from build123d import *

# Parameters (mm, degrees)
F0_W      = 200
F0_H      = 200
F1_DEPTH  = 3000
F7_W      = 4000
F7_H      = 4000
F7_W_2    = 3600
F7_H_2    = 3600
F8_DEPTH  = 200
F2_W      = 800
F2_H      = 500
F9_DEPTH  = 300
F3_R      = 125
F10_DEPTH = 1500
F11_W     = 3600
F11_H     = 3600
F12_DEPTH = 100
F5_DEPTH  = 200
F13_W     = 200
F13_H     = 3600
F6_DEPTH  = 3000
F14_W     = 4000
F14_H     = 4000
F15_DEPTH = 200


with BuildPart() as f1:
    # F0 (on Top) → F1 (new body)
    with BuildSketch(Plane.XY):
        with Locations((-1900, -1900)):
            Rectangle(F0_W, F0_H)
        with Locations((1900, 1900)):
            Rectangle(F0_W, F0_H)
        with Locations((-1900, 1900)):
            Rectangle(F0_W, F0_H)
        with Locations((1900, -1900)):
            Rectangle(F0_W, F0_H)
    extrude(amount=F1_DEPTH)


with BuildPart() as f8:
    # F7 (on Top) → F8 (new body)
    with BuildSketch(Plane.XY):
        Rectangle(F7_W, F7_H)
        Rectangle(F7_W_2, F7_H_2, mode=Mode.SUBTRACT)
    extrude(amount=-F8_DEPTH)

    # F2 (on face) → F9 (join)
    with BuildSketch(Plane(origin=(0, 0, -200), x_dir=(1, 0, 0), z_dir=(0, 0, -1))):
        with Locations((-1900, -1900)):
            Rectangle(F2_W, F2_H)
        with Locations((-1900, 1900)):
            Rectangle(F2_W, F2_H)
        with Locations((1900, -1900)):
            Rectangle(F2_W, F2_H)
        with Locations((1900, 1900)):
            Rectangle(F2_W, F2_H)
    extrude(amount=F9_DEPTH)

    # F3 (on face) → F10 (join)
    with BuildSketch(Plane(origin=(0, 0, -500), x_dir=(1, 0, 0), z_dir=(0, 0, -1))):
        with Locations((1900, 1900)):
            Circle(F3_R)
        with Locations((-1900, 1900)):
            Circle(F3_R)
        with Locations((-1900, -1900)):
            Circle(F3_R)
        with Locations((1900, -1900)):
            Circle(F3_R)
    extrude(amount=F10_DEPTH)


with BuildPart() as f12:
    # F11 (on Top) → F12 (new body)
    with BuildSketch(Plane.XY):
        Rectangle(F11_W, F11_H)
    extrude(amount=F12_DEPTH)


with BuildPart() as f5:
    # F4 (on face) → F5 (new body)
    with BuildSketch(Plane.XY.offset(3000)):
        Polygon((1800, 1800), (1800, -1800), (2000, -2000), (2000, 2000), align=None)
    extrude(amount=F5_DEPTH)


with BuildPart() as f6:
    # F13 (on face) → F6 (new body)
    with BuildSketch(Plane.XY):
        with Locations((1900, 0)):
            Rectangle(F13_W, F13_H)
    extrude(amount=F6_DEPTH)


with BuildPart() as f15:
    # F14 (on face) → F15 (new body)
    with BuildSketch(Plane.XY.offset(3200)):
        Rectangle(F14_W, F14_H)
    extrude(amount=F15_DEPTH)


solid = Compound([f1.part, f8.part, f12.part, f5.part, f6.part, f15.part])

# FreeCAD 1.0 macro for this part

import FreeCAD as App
import Part
import Sketcher


def add_polygon(sketch, points):
    """Adds a closed chain of lines whose ends are joined by coincident constraints."""
    first, n = sketch.GeometryCount, len(points)
    for a, b in zip(points, points[1:] + points[:1]):
        sketch.addGeometry(Part.LineSegment(App.Vector(*a, 0), App.Vector(*b, 0)), False)
    for i in range(n):
        sketch.addConstraint(Sketcher.Constraint("Coincident", first + i, 2, first + (i + 1) % n, 1))

doc = App.newDocument("Part")
body = doc.addObject("PartDesign::Body", "Body")
body.AllowCompound = True

# Sketch on XY plane
sketch1 = body.newObject("Sketcher::SketchObject", "Sketch")
sketch1.AttachmentSupport = (doc.getObject("XY_Plane"), [""])
sketch1.MapMode = "FlatFace"
add_polygon(sketch1, [(-2000, -1800), (-2000, -2000), (-1800, -2000), (-1800, -1800)])  # lines 0-3
add_polygon(sketch1, [(1800, 2000), (1800, 1800), (2000, 1800), (2000, 2000)])  # lines 4-7
add_polygon(sketch1, [(-2000, 2000), (-2000, 1800), (-1800, 1800), (-1800, 2000)])  # lines 8-11
add_polygon(sketch1, [(1800, -1800), (1800, -2000), (2000, -2000), (2000, -1800)])  # lines 12-15
sketch1.addConstraint(Sketcher.Constraint("Vertical", 0))
sketch1.addConstraint(Sketcher.Constraint("Horizontal", 1))
sketch1.addConstraint(Sketcher.Constraint("Vertical", 2))
sketch1.addConstraint(Sketcher.Constraint("Horizontal", 3))
sketch1.addConstraint(Sketcher.Constraint("Vertical", 4))
sketch1.addConstraint(Sketcher.Constraint("Horizontal", 5))
sketch1.addConstraint(Sketcher.Constraint("Vertical", 6))
sketch1.addConstraint(Sketcher.Constraint("Horizontal", 7))
sketch1.addConstraint(Sketcher.Constraint("Vertical", 8))
sketch1.addConstraint(Sketcher.Constraint("Horizontal", 9))
sketch1.addConstraint(Sketcher.Constraint("Vertical", 10))
sketch1.addConstraint(Sketcher.Constraint("Horizontal", 11))
sketch1.addConstraint(Sketcher.Constraint("Vertical", 12))
sketch1.addConstraint(Sketcher.Constraint("Horizontal", 13))
sketch1.addConstraint(Sketcher.Constraint("Vertical", 14))
sketch1.addConstraint(Sketcher.Constraint("Horizontal", 15))
sketch1.addConstraint(Sketcher.Constraint("Symmetric", 2, 2, 4, 2, -1, 1))
sketch1.addConstraint(Sketcher.Constraint("Symmetric", 0, 2, 6, 2, -1, 1))
sketch1.addConstraint(Sketcher.Constraint("Symmetric", 10, 2, 12, 2, -1, 1))
sketch1.addConstraint(Sketcher.Constraint("Symmetric", 8, 2, 14, 2, -1, 1))
sketch1.addConstraint(Sketcher.Constraint("Symmetric", 5, 2, 8, 2, -2))
sketch1.addConstraint(Sketcher.Constraint("Symmetric", 7, 2, 10, 2, -2))
sketch1.addConstraint(Sketcher.Constraint("Equal", 15, 0))
sketch1.addConstraint(Sketcher.Constraint("DistanceX", 1, 1, 1, 2, 200.0))
sketch1.addConstraint(Sketcher.Constraint("DistanceX", 0, 2, -1, 1, 2000.0))
sketch1.addConstraint(Sketcher.Constraint("DistanceY", 0, 2, -1, 1, 2000.0))
pad1 = body.newObject("PartDesign::Pad", "Pad")
pad1.Profile = sketch1
pad1.Length = 3000
body2 = doc.addObject("PartDesign::Body", "Body001")

# Sketch on XY plane
sketch2 = body2.newObject("Sketcher::SketchObject", "Sketch001")
sketch2.AttachmentSupport = (doc.getObject("XY_Plane001"), [""])
sketch2.MapMode = "FlatFace"
add_polygon(sketch2, [(-2000, 2000), (-2000, -2000), (2000, -2000), (2000, 2000)])  # lines 0-3
add_polygon(sketch2, [(1800, -1800), (-1800, -1800), (-1800, 1800), (1800, 1800)])  # lines 4-7
sketch2.addConstraint(Sketcher.Constraint("Vertical", 0))
sketch2.addConstraint(Sketcher.Constraint("Horizontal", 1))
sketch2.addConstraint(Sketcher.Constraint("Vertical", 2))
sketch2.addConstraint(Sketcher.Constraint("Horizontal", 3))
sketch2.addConstraint(Sketcher.Constraint("Horizontal", 4))
sketch2.addConstraint(Sketcher.Constraint("Vertical", 5))
sketch2.addConstraint(Sketcher.Constraint("Horizontal", 6))
sketch2.addConstraint(Sketcher.Constraint("Vertical", 7))
sketch2.addConstraint(Sketcher.Constraint("Symmetric", 0, 2, 2, 2, -1, 1))
sketch2.addConstraint(Sketcher.Constraint("Symmetric", 4, 2, 6, 2, -1, 1))
sketch2.addConstraint(Sketcher.Constraint("Equal", 3, 0))
sketch2.addConstraint(Sketcher.Constraint("Equal", 6, 5))
sketch2.addConstraint(Sketcher.Constraint("DistanceX", 1, 1, 1, 2, 4000.0))
sketch2.addConstraint(Sketcher.Constraint("DistanceX", 4, 2, 4, 1, 3600.0))
pad2 = body2.newObject("PartDesign::Pad", "Pad001")
pad2.Profile = sketch2
pad2.Length = 200
pad2.Reversed = True

# Sketch on XY plane
sketch3 = body2.newObject("Sketcher::SketchObject", "Sketch002")
sketch3.AttachmentSupport = (doc.getObject("XY_Plane001"), [""])
sketch3.MapMode = "FlatFace"
sketch3.AttachmentOffset = App.Placement(App.Vector(0, 0, -200), App.Rotation())
add_polygon(sketch3, [(-2300, 1650), (-2300, 2150), (-1500, 2150), (-1500, 1650)])  # lines 0-3
add_polygon(sketch3, [(-2300, -2150), (-2300, -1650), (-1500, -1650), (-1500, -2150)])  # lines 4-7
add_polygon(sketch3, [(1500, 1650), (1500, 2150), (2300, 2150), (2300, 1650)])  # lines 8-11
add_polygon(sketch3, [(1500, -2150), (1500, -1650), (2300, -1650), (2300, -2150)])  # lines 12-15
sketch3.addConstraint(Sketcher.Constraint("Vertical", 0))
sketch3.addConstraint(Sketcher.Constraint("Horizontal", 1))
sketch3.addConstraint(Sketcher.Constraint("Vertical", 2))
sketch3.addConstraint(Sketcher.Constraint("Horizontal", 3))
sketch3.addConstraint(Sketcher.Constraint("Vertical", 4))
sketch3.addConstraint(Sketcher.Constraint("Horizontal", 5))
sketch3.addConstraint(Sketcher.Constraint("Vertical", 6))
sketch3.addConstraint(Sketcher.Constraint("Horizontal", 7))
sketch3.addConstraint(Sketcher.Constraint("Vertical", 8))
sketch3.addConstraint(Sketcher.Constraint("Horizontal", 9))
sketch3.addConstraint(Sketcher.Constraint("Vertical", 10))
sketch3.addConstraint(Sketcher.Constraint("Horizontal", 11))
sketch3.addConstraint(Sketcher.Constraint("Vertical", 12))
sketch3.addConstraint(Sketcher.Constraint("Horizontal", 13))
sketch3.addConstraint(Sketcher.Constraint("Vertical", 14))
sketch3.addConstraint(Sketcher.Constraint("Horizontal", 15))
sketch3.addConstraint(Sketcher.Constraint("Symmetric", 6, 2, 8, 2, -1, 1))
sketch3.addConstraint(Sketcher.Constraint("Symmetric", 4, 2, 10, 2, -1, 1))
sketch3.addConstraint(Sketcher.Constraint("Symmetric", 2, 2, 12, 2, -1, 1))
sketch3.addConstraint(Sketcher.Constraint("Symmetric", 0, 2, 14, 2, -1, 1))
sketch3.addConstraint(Sketcher.Constraint("Symmetric", 1, 2, 8, 2, -2))
sketch3.addConstraint(Sketcher.Constraint("Symmetric", 3, 2, 10, 2, -2))
sketch3.addConstraint(Sketcher.Constraint("DistanceX", 1, 1, 1, 2, 800.0))
sketch3.addConstraint(Sketcher.Constraint("DistanceY", 0, 1, 0, 2, 500.0))
sketch3.addConstraint(Sketcher.Constraint("DistanceX", 0, 2, -1, 1, 2300.0))
sketch3.addConstraint(Sketcher.Constraint("DistanceY", -1, 1, 0, 2, 2150.0))
pad3 = body2.newObject("PartDesign::Pad", "Pad002")
pad3.Profile = sketch3
pad3.Length = 300
pad3.Reversed = True

# Sketch on XY plane
sketch4 = body2.newObject("Sketcher::SketchObject", "Sketch003")
sketch4.AttachmentSupport = (doc.getObject("XY_Plane001"), [""])
sketch4.MapMode = "FlatFace"
sketch4.AttachmentOffset = App.Placement(App.Vector(0, 0, -500), App.Rotation())
sketch4.addGeometry(Part.Circle(App.Vector(1900, -1900, 0), App.Vector(0, 0, 1), 125), False)
sketch4.addGeometry(Part.Circle(App.Vector(-1900, -1900, 0), App.Vector(0, 0, 1), 125), False)
sketch4.addGeometry(Part.Circle(App.Vector(-1900, 1900, 0), App.Vector(0, 0, 1), 125), False)
sketch4.addGeometry(Part.Circle(App.Vector(1900, 1900, 0), App.Vector(0, 0, 1), 125), False)
sketch4.addConstraint(Sketcher.Constraint("Equal", 0, 1))
sketch4.addConstraint(Sketcher.Constraint("Equal", 1, 2))
sketch4.addConstraint(Sketcher.Constraint("Equal", 2, 3))
sketch4.addConstraint(Sketcher.Constraint("Symmetric", 0, 3, 2, 3, -1, 1))
sketch4.addConstraint(Sketcher.Constraint("Symmetric", 1, 3, 3, 3, -1, 1))
sketch4.addConstraint(Sketcher.Constraint("Symmetric", 0, 3, 1, 3, -2))
sketch4.addConstraint(Sketcher.Constraint("Diameter", 0, 250.0))
sketch4.addConstraint(Sketcher.Constraint("DistanceX", -1, 1, 0, 3, 1900.0))
sketch4.addConstraint(Sketcher.Constraint("DistanceY", 0, 3, -1, 1, 1900.0))
pad4 = body2.newObject("PartDesign::Pad", "Pad003")
pad4.Profile = sketch4
pad4.Length = 1500
pad4.Reversed = True
body3 = doc.addObject("PartDesign::Body", "Body002")

# Sketch on XY plane
sketch5 = body3.newObject("Sketcher::SketchObject", "Sketch004")
sketch5.AttachmentSupport = (doc.getObject("XY_Plane002"), [""])
sketch5.MapMode = "FlatFace"
add_polygon(sketch5, [(-1800, 1800), (-1800, -1800), (1800, -1800), (1800, 1800)])  # lines 0-3
sketch5.addConstraint(Sketcher.Constraint("Vertical", 0))
sketch5.addConstraint(Sketcher.Constraint("Horizontal", 1))
sketch5.addConstraint(Sketcher.Constraint("Vertical", 2))
sketch5.addConstraint(Sketcher.Constraint("Horizontal", 3))
sketch5.addConstraint(Sketcher.Constraint("Symmetric", 0, 2, 2, 2, -1, 1))
sketch5.addConstraint(Sketcher.Constraint("Equal", 3, 0))
sketch5.addConstraint(Sketcher.Constraint("DistanceX", 1, 1, 1, 2, 3600.0))
pad5 = body3.newObject("PartDesign::Pad", "Pad004")
pad5.Profile = sketch5
pad5.Length = 100
body4 = doc.addObject("PartDesign::Body", "Body003")

# Sketch on XY plane
sketch6 = body4.newObject("Sketcher::SketchObject", "Sketch005")
sketch6.AttachmentSupport = (doc.getObject("XY_Plane003"), [""])
sketch6.MapMode = "FlatFace"
sketch6.AttachmentOffset = App.Placement(App.Vector(0, 0, 3000), App.Rotation())
add_polygon(sketch6, [(1800, 1800), (1800, -1800), (2000, -2000), (2000, 2000)])  # lines 0-3
sketch6.addConstraint(Sketcher.Constraint("Vertical", 0))
sketch6.addConstraint(Sketcher.Constraint("Vertical", 2))
sketch6.addConstraint(Sketcher.Constraint("Perpendicular", 1, 3))
sketch6.addConstraint(Sketcher.Constraint("Equal", 1, 3))
sketch6.addConstraint(Sketcher.Constraint("DistanceY", 0, 2, 0, 1, 3600.0))
sketch6.addConstraint(Sketcher.Constraint("DistanceY", 2, 1, 2, 2, 4000.0))
sketch6.addConstraint(Sketcher.Constraint("DistanceX", -1, 1, 0, 2, 1800.0))
sketch6.addConstraint(Sketcher.Constraint("DistanceY", 0, 2, -1, 1, 1800.0))
pad6 = body4.newObject("PartDesign::Pad", "Pad005")
pad6.Profile = sketch6
pad6.Length = 200
body5 = doc.addObject("PartDesign::Body", "Body004")

# Sketch on XY plane
sketch7 = body5.newObject("Sketcher::SketchObject", "Sketch006")
sketch7.AttachmentSupport = (doc.getObject("XY_Plane004"), [""])
sketch7.MapMode = "FlatFace"
add_polygon(sketch7, [(1800, 1800), (1800, -1800), (2000, -1800), (2000, 1800)])  # lines 0-3
sketch7.addConstraint(Sketcher.Constraint("Vertical", 0))
sketch7.addConstraint(Sketcher.Constraint("Horizontal", 1))
sketch7.addConstraint(Sketcher.Constraint("Vertical", 2))
sketch7.addConstraint(Sketcher.Constraint("Horizontal", 3))
sketch7.addConstraint(Sketcher.Constraint("DistanceX", 1, 1, 1, 2, 200.0))
sketch7.addConstraint(Sketcher.Constraint("DistanceY", 0, 2, 0, 1, 3600.0))
sketch7.addConstraint(Sketcher.Constraint("DistanceX", -1, 1, 0, 2, 1800.0))
sketch7.addConstraint(Sketcher.Constraint("DistanceY", 0, 2, -1, 1, 1800.0))
pad7 = body5.newObject("PartDesign::Pad", "Pad006")
pad7.Profile = sketch7
pad7.Length = 3000
body6 = doc.addObject("PartDesign::Body", "Body005")

# Sketch on XY plane
sketch8 = body6.newObject("Sketcher::SketchObject", "Sketch007")
sketch8.AttachmentSupport = (doc.getObject("XY_Plane005"), [""])
sketch8.MapMode = "FlatFace"
sketch8.AttachmentOffset = App.Placement(App.Vector(0, 0, 3200), App.Rotation())
add_polygon(sketch8, [(-2000, 2000), (-2000, -2000), (2000, -2000), (2000, 2000)])  # lines 0-3
sketch8.addConstraint(Sketcher.Constraint("Vertical", 0))
sketch8.addConstraint(Sketcher.Constraint("Horizontal", 1))
sketch8.addConstraint(Sketcher.Constraint("Vertical", 2))
sketch8.addConstraint(Sketcher.Constraint("Horizontal", 3))
sketch8.addConstraint(Sketcher.Constraint("Symmetric", 0, 2, 2, 2, -1, 1))
sketch8.addConstraint(Sketcher.Constraint("Equal", 3, 0))
sketch8.addConstraint(Sketcher.Constraint("DistanceX", 1, 1, 1, 2, 4000.0))
pad8 = body6.newObject("PartDesign::Pad", "Pad007")
pad8.Profile = sketch8
pad8.Length = 200

doc.recompute()
